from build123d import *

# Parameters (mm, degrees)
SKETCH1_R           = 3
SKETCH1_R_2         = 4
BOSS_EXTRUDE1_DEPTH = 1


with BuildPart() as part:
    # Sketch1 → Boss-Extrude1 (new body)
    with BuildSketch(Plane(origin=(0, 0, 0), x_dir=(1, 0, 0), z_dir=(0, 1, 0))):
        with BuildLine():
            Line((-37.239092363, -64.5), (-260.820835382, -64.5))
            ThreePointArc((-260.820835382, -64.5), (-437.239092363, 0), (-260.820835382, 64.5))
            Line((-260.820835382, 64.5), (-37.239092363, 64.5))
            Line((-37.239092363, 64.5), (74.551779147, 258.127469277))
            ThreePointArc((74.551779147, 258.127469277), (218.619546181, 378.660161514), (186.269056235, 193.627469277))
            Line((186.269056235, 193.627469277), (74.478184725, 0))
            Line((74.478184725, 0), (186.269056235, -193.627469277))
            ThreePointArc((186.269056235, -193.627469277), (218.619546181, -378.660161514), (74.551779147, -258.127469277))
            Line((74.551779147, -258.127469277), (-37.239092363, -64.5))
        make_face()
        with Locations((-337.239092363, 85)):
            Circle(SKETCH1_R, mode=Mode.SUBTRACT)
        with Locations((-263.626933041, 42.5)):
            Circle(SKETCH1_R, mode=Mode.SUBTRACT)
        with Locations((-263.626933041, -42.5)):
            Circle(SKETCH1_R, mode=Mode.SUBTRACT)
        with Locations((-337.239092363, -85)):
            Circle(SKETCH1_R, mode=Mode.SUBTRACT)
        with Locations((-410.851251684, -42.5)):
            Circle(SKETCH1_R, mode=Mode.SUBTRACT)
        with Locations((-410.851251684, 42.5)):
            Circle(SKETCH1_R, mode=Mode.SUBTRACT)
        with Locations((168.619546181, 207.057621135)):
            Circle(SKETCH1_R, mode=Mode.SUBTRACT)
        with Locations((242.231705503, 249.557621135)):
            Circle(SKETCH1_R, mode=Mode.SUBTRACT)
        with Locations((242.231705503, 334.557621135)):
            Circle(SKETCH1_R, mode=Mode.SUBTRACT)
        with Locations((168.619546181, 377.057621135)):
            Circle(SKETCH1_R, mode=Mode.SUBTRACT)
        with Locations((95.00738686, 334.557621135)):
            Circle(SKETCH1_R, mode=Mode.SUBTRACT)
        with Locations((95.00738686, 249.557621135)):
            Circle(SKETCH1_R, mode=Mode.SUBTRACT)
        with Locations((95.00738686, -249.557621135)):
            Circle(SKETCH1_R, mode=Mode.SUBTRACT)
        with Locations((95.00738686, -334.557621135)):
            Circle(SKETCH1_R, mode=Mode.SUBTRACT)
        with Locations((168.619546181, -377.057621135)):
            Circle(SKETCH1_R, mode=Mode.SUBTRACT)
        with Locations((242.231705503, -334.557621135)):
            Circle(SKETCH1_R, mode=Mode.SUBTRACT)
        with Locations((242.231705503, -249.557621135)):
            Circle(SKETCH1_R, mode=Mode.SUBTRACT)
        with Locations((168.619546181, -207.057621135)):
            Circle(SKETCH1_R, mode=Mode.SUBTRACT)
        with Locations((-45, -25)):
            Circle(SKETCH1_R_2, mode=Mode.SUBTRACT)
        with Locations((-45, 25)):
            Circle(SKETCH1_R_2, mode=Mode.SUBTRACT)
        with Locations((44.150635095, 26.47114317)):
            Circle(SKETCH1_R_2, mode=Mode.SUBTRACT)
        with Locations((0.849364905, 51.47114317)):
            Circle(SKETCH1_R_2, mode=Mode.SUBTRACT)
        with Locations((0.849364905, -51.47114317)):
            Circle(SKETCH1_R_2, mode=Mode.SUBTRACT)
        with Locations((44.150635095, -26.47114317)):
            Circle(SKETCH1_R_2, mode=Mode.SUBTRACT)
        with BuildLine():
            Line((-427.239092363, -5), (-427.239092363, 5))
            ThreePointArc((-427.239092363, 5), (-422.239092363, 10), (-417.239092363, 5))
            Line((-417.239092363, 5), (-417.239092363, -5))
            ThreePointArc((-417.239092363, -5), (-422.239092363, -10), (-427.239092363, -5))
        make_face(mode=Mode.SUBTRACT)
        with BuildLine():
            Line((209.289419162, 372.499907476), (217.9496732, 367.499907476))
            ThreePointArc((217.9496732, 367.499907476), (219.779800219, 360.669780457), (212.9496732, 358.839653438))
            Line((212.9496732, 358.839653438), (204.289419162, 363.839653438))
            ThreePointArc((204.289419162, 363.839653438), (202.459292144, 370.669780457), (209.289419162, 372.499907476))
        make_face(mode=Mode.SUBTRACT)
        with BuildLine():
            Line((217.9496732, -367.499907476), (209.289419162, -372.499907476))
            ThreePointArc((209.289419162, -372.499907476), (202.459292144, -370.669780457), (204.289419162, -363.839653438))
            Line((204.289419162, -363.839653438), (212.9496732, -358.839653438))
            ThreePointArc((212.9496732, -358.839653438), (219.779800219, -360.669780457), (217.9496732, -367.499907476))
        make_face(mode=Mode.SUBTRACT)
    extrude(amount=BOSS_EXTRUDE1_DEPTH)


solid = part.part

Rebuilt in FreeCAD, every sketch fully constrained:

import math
import FreeCAD as App
import Part
import Sketcher

V = App.Vector
Q = App.Units.Quantity

doc = App.newDocument("Part")
params = doc.addObject("Spreadsheet::Sheet", "Params")
for row, (alias, value) in enumerate([
    ("sketch1_diameter", "6 mm"),
    ("sketch1_diameter2", "8 mm"),
    ("sketch1_radius", "100 mm"),
    ("sketch1_radius2", "5 mm"),
    ("sketch1_height", "10 mm"),
    ("pad1_length", "1 mm"),
], start=1):
    params.set(f"A{row}", alias)
    params.set(f"B{row}", "=" + value)
    params.setAlias(f"B{row}", alias)

body = doc.addObject("PartDesign::Body", "Body")

# Sketch on XZ plane
sketch1 = body.newObject("Sketcher::SketchObject", "Sketch")
sketch1.AttachmentSupport = (doc.getObject("XZ_Plane"), [""])
sketch1.MapMode = "FlatFace"
sketch1.addGeometry([
    Part.LineSegment(V(-260.820835, 64.5, 0), V(-37.239092, 64.5, 0)),  # 0
    Part.LineSegment(V(-37.239092, 64.5, 0), V(74.551779, 258.127469, 0)),  # 1
    Part.ArcOfCircle(Part.Circle(V(168.619546, 292.057621, 0), V(0, 0, 1), 100), math.radians(-79.834325), math.radians(199.834325)),  # 2
    Part.LineSegment(V(186.269056, 193.627469, 0), V(74.478185, 0, 0)),  # 3
    Part.LineSegment(V(74.478185, 0, 0), V(186.269056, -193.627469, 0)),  # 4
    Part.ArcOfCircle(Part.Circle(V(168.619546, -292.057621, 0), V(0, 0, 1), 100), math.radians(160.165675), math.radians(439.834325)),  # 5
    Part.LineSegment(V(74.551779, -258.127469, 0), V(-37.239092, -64.5, 0)),  # 6
    Part.LineSegment(V(-37.239092, -64.5, 0), V(-260.820835, -64.5, 0)),  # 7
    Part.ArcOfCircle(Part.Circle(V(-337.239092, 0, 0), V(0, 0, 1), 100), math.radians(40.165675), math.radians(319.834325)),  # 8
    Part.LineSegment(V(217.949673, 367.499907, 0), V(209.289419, 372.499907, 0)),  # 9
    Part.ArcOfCircle(Part.Circle(V(206.789419, 368.16978, 0), V(0, 0, 1), 5), math.radians(60), math.radians(240)),  # 10
    Part.LineSegment(V(204.289419, 363.839653, 0), V(212.949673, 358.839653, 0)),  # 11
    Part.ArcOfCircle(Part.Circle(V(215.449673, 363.16978, 0), V(0, 0, 1), 5), math.radians(-120), math.radians(60)),  # 12
    Part.Circle(V(242.231706, 334.557621, 0), V(0, 0, 1), 3),  # 13
    Part.Circle(V(168.619546, 377.057621, 0), V(0, 0, 1), 3),  # 14
    Part.Circle(V(95.007387, 334.557621, 0), V(0, 0, 1), 3),  # 15
    Part.Circle(V(242.231706, 249.557621, 0), V(0, 0, 1), 3),  # 16
    Part.Circle(V(168.619546, 207.057621, 0), V(0, 0, 1), 3),  # 17
    Part.Circle(V(95.007387, 249.557621, 0), V(0, 0, 1), 3),  # 18
    Part.Circle(V(0.849365, 51.471143, 0), V(0, 0, 1), 4),  # 19
    Part.Circle(V(44.150635, 26.471143, 0), V(0, 0, 1), 4),  # 20
    Part.Circle(V(-45, 25, 0), V(0, 0, 1), 4),  # 21
    Part.Circle(V(-337.239092, 85, 0), V(0, 0, 1), 3),  # 22
    Part.Circle(V(-263.626933, 42.5, 0), V(0, 0, 1), 3),  # 23
    Part.Circle(V(-410.851252, 42.5, 0), V(0, 0, 1), 3),  # 24
    Part.LineSegment(V(-427.239092, 5, 0), V(-427.239092, -5, 0)),  # 25
    Part.ArcOfCircle(Part.Circle(V(-422.239092, -5, 0), V(0, 0, 1), 5), math.radians(180), math.radians(360)),  # 26
    Part.LineSegment(V(-417.239092, -5, 0), V(-417.239092, 5, 0)),  # 27
    Part.ArcOfCircle(Part.Circle(V(-422.239092, 5, 0), V(0, 0, 1), 5), math.radians(0), math.radians(180)),  # 28
    Part.Circle(V(44.150635, -26.471143, 0), V(0, 0, 1), 4),  # 29
    Part.Circle(V(0.849365, -51.471143, 0), V(0, 0, 1), 4),  # 30
    Part.Circle(V(-45, -25, 0), V(0, 0, 1), 4),  # 31
    Part.Circle(V(168.619546, -207.057621, 0), V(0, 0, 1), 3),  # 32
    Part.Circle(V(242.231706, -249.557621, 0), V(0, 0, 1), 3),  # 33
    Part.Circle(V(95.007387, -249.557621, 0), V(0, 0, 1), 3),  # 34
    Part.Circle(V(242.231706, -334.557621, 0), V(0, 0, 1), 3),  # 35
    Part.LineSegment(V(209.289419, -372.499907, 0), V(217.949673, -367.499907, 0)),  # 36
    Part.ArcOfCircle(Part.Circle(V(215.449673, -363.16978, 0), V(0, 0, 1), 5), math.radians(-60), math.radians(120)),  # 37
    Part.LineSegment(V(212.949673, -358.839653, 0), V(204.289419, -363.839653, 0)),  # 38
    Part.ArcOfCircle(Part.Circle(V(206.789419, -368.16978, 0), V(0, 0, 1), 5), math.radians(120), math.radians(300)),  # 39
    Part.Circle(V(168.619546, -377.057621, 0), V(0, 0, 1), 3),  # 40
    Part.Circle(V(95.007387, -334.557621, 0), V(0, 0, 1), 3),  # 41
    Part.Circle(V(-263.626933, -42.5, 0), V(0, 0, 1), 3),  # 42
    Part.Circle(V(-337.239092, -85, 0), V(0, 0, 1), 3),  # 43
    Part.Circle(V(-410.851252, -42.5, 0), V(0, 0, 1), 3),  # 44
], False)
sketch1.addConstraint([
    Sketcher.Constraint("Coincident", 0, 2, 1, 1),
    Sketcher.Constraint("Coincident", 1, 2, 2, 2),
    Sketcher.Constraint("Coincident", 2, 1, 3, 1),
    Sketcher.Constraint("Coincident", 3, 2, 4, 1),
    Sketcher.Constraint("Coincident", 4, 2, 5, 2),
    Sketcher.Constraint("Coincident", 5, 1, 6, 1),
    Sketcher.Constraint("Coincident", 6, 2, 7, 1),
    Sketcher.Constraint("Coincident", 7, 2, 8, 2),
    Sketcher.Constraint("Coincident", 8, 1, 0, 1),
    Sketcher.Constraint("Tangent", 9, 2, 10, 1),
    Sketcher.Constraint("Tangent", 10, 2, 11, 1),
    Sketcher.Constraint("Tangent", 11, 2, 12, 1),
    Sketcher.Constraint("Tangent", 12, 2, 9, 1),
    Sketcher.Constraint("Tangent", 25, 2, 26, 1),
    Sketcher.Constraint("Tangent", 26, 2, 27, 1),
    Sketcher.Constraint("Tangent", 27, 2, 28, 1),
    Sketcher.Constraint("Tangent", 28, 2, 25, 1),
    Sketcher.Constraint("Tangent", 36, 2, 37, 1),
    Sketcher.Constraint("Tangent", 37, 2, 38, 1),
    Sketcher.Constraint("Tangent", 38, 2, 39, 1),
    Sketcher.Constraint("Tangent", 39, 2, 36, 1),
    Sketcher.Constraint("Horizontal", 0),
    Sketcher.Constraint("Horizontal", 7),
    Sketcher.Constraint("Vertical", 25),
    Sketcher.Constraint("Vertical", 27),
    Sketcher.Constraint("Equal", 2, 5),
    Sketcher.Constraint("Equal", 5, 8),
    Sketcher.Constraint("Equal", 10, 12),
    Sketcher.Constraint("Equal", 13, 14),
    Sketcher.Constraint("Equal", 14, 15),
    Sketcher.Constraint("Equal", 15, 16),
    Sketcher.Constraint("Equal", 16, 17),
    Sketcher.Constraint("Equal", 17, 18),
    Sketcher.Constraint("Equal", 19, 20),
    Sketcher.Constraint("Equal", 20, 21),
    Sketcher.Constraint("Equal", 18, 22),
    Sketcher.Constraint("Equal", 22, 23),
    Sketcher.Constraint("Equal", 23, 24),
    Sketcher.Constraint("Equal", 12, 26),
    Sketcher.Constraint("Equal", 21, 29),
    Sketcher.Constraint("Equal", 29, 30),
    Sketcher.Constraint("Equal", 30, 31),
    Sketcher.Constraint("Equal", 24, 32),
    Sketcher.Constraint("Equal", 32, 33),
    Sketcher.Constraint("Equal", 33, 34),
    Sketcher.Constraint("Equal", 34, 35),
    Sketcher.Constraint("Equal", 28, 37),
    Sketcher.Constraint("Equal", 37, 39),
    Sketcher.Constraint("Equal", 35, 40),
    Sketcher.Constraint("Equal", 40, 41),
    Sketcher.Constraint("Equal", 41, 42),
    Sketcher.Constraint("Equal", 42, 43),
    Sketcher.Constraint("Equal", 43, 44),
    Sketcher.Constraint("Symmetric", 2, 3, 5, 3, -1),
    Sketcher.Constraint("Symmetric", 20, 3, 29, 3, -1),
    Sketcher.Constraint("Symmetric", 19, 3, 30, 3, -1),
    Sketcher.Constraint("Symmetric", 21, 3, 31, 3, -1),
    Sketcher.Constraint("Symmetric", 17, 3, 32, 3, -1),
    Sketcher.Constraint("Symmetric", 16, 3, 33, 3, -1),
    Sketcher.Constraint("Symmetric", 18, 3, 34, 3, -1),
    Sketcher.Constraint("Symmetric", 13, 3, 35, 3, -1),
    Sketcher.Constraint("Symmetric", 12, 3, 37, 3, -1),
    Sketcher.Constraint("Symmetric", 10, 3, 39, 3, -1),
    Sketcher.Constraint("Symmetric", 14, 3, 40, 3, -1),
    Sketcher.Constraint("Symmetric", 15, 3, 41, 3, -1),
    Sketcher.Constraint("Symmetric", 23, 3, 42, 3, -1),
    Sketcher.Constraint("Symmetric", 22, 3, 43, 3, -1),
    Sketcher.Constraint("Symmetric", 24, 3, 44, 3, -1),
    Sketcher.Constraint("Symmetric", 0, 2, 6, 2, -1),
    Sketcher.Constraint("PointOnObject", 8, 3, -1),
    Sketcher.Constraint("PointOnObject", 3, 2, -1),
    Sketcher.Constraint("Parallel", 1, 3),
    Sketcher.Constraint("Parallel", 4, 6),
    Sketcher.Constraint("Perpendicular", 3, 9),
    Sketcher.Constraint("Perpendicular", 6, 36),
    Sketcher.Constraint("Horizontal", 13, 3, 15, 3),
    Sketcher.Constraint("Horizontal", 16, 3, 18, 3),
    Sketcher.Constraint("Horizontal", 23, 3, 24, 3),
    Sketcher.Constraint("Vertical", 5, 3, 14, 3),
    Sketcher.Constraint("Vertical", 13, 3, 16, 3),
    Sketcher.Constraint("Vertical", 14, 3, 17, 3),
    Sketcher.Constraint("Vertical", 15, 3, 18, 3),
    Sketcher.Constraint("Vertical", 8, 3, 22, 3),
    Sketcher.Constraint("Equal", 1, 3),
    Sketcher.Constraint("Diameter", 13, Q("6 mm")),
    Sketcher.Constraint("Diameter", 19, Q("8 mm")),
    Sketcher.Constraint("Radius", 2, Q("100 mm")),
    Sketcher.Constraint("Radius", 10, Q("5 mm")),
    Sketcher.Constraint("DistanceY", 25, 2, 25, 1, Q("10 mm")),
    Sketcher.Constraint("Angle", 1, Q("60 deg")),
    Sketcher.Constraint("Distance", 9, Q("10 mm")),
    Sketcher.Constraint("DistanceX", 21, 3, -1, 1, Q("45 mm")),
    Sketcher.Constraint("DistanceY", -1, 1, 21, 3, Q("25 mm")),
    Sketcher.Constraint("DistanceY", -1, 1, 22, 3, Q("85 mm")),
    Sketcher.Constraint("DistanceY", 26, 3, -1, 1, Q("5 mm")),
    Sketcher.Constraint("DistanceY", 2, 3, 14, 3, Q("85 mm")),
    Sketcher.Constraint("DistanceY", 16, 3, 13, 3, Q("85 mm")),
    Sketcher.Constraint("DistanceY", 17, 3, 2, 3, Q("85 mm")),
    Sketcher.Constraint("DistanceY", 20, 3, 19, 3, Q("25 mm")),
    Sketcher.Constraint("DistanceX", 26, 3, 8, 3, Q("85 mm")),
    Sketcher.Constraint("DistanceY", 42, 3, 23, 3, Q("85 mm")),
    Sketcher.Constraint("DistanceY", 7, 2, 42, 3, Q("22 mm")),
    Sketcher.Constraint("DistanceY", 2, 3, 13, 3, Q("42.5 mm")),
    Sketcher.Constraint("DistanceY", 5, 3, 10, 3, Q("660.227402 mm")),
    Sketcher.Constraint("DistanceX", 0, 1, 0, 2, Q("223.581743 mm")),
    Sketcher.Constraint("DistanceY", -1, 1, 2, 3, Q("292.057621 mm")),
    Sketcher.Constraint("DistanceX", -1, 1, 10, 3, Q("206.789419 mm")),
    Sketcher.Constraint("DistanceX", 24, 3, -1, 1, Q("410.851252 mm")),
    Sketcher.Constraint("DistanceX", -1, 1, 1, 2, Q("74.551779 mm")),
    Sketcher.Constraint("DistanceY", -1, 1, 1, 2, Q("258.127469 mm")),
    Sketcher.Constraint("DistanceX", 2, 3, 13, 3, Q("73.612159 mm")),
    Sketcher.Constraint("DistanceX", 15, 3, 2, 3, Q("73.612159 mm")),
    Sketcher.Constraint("DistanceX", 19, 3, 18, 3, Q("94.158022 mm")),
    Sketcher.Constraint("DistanceX", 19, 3, 20, 3, Q("43.30127 mm")),
    Sketcher.Constraint("DistanceX", 8, 3, 23, 3, Q("73.612159 mm")),
    Sketcher.Constraint("DistanceY", -1, 1, 19, 3, Q("51.471143 mm")),
])
sketch1.setExpression("Constraints[84]", "Params.sketch1_diameter")
sketch1.setExpression("Constraints[85]", "Params.sketch1_diameter2")
sketch1.setExpression("Constraints[86]", "Params.sketch1_radius")
sketch1.setExpression("Constraints[87]", "Params.sketch1_radius2")
sketch1.setExpression("Constraints[88]", "Params.sketch1_height")
pad1 = body.newObject("PartDesign::Pad", "Pad")
pad1.Profile = sketch1
pad1.setExpression("Length", "Params.pad1_length")
pad1.Reversed = True

doc.recompute()
